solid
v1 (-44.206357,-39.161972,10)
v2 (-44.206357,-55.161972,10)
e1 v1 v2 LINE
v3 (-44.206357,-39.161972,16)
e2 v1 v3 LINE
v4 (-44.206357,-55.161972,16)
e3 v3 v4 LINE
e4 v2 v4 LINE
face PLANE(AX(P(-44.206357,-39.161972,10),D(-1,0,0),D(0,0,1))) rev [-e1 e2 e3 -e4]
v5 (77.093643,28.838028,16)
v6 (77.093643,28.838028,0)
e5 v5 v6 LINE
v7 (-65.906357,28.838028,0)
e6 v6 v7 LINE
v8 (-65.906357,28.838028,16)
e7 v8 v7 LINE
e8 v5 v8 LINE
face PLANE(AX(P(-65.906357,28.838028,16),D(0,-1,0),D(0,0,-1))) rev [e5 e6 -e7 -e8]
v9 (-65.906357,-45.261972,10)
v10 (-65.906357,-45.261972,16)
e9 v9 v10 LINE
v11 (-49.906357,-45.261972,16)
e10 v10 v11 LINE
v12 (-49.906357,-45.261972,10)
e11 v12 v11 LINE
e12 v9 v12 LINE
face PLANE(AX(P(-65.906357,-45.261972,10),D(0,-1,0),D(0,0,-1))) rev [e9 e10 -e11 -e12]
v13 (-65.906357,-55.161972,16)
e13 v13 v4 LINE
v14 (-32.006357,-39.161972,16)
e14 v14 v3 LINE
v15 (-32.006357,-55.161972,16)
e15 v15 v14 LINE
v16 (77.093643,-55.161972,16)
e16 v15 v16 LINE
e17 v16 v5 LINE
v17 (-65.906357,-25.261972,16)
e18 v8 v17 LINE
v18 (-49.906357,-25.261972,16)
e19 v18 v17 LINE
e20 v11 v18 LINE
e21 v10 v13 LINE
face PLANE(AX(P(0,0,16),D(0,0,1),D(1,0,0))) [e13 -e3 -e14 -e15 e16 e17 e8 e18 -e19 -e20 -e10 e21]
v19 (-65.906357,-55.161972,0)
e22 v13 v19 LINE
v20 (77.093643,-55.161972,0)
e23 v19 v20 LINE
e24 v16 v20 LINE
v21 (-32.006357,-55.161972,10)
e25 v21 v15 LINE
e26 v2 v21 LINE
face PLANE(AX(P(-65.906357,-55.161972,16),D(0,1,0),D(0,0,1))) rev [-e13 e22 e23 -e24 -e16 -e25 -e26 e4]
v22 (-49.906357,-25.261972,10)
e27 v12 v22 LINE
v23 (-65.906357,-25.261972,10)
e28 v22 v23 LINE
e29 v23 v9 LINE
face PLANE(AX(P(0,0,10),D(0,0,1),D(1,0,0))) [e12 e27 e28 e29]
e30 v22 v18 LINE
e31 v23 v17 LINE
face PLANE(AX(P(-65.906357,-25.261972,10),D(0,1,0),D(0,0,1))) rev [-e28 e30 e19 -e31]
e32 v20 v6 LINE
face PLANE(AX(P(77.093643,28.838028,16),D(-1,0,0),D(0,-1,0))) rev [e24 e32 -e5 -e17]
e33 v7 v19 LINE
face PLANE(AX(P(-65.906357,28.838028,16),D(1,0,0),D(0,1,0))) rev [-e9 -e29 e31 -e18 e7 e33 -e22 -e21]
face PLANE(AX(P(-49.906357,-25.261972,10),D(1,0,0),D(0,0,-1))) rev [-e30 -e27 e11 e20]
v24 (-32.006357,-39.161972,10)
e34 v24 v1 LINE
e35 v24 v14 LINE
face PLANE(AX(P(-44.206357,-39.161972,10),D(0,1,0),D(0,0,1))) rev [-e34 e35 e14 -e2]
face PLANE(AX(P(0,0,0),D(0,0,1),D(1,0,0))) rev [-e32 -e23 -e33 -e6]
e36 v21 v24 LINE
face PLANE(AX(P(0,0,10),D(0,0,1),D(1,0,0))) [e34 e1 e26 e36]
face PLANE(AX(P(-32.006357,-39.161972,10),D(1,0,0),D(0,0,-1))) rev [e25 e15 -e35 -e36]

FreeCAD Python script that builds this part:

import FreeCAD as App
import Part
import Sketcher

V = App.Vector
Q = App.Units.Quantity

doc = App.newDocument("Part")
body = doc.addObject("PartDesign::Body", "Body")

sketch1 = body.newObject("Sketcher::SketchObject", "Sketch")
sketch1.AttachmentSupport = (doc.getObject("XY_Plane"), [""])
sketch1.MapMode = "FlatFace"
sketch1.addGeometry([
    Part.LineSegment(V(-65.906357, 28.838028, 0), V(-65.906357, -55.161972, 0)),
    Part.LineSegment(V(-65.906357, -55.161972, 0), V(77.093643, -55.161972, 0)),
    Part.LineSegment(V(77.093643, -55.161972, 0), V(77.093643, 28.838028, 0)),
    Part.LineSegment(V(77.093643, 28.838028, 0), V(-65.906357, 28.838028, 0)),
], False)
sketch1.addConstraint([
    Sketcher.Constraint("Coincident", 0, 2, 1, 1),
    Sketcher.Constraint("Coincident", 1, 2, 2, 1),
    Sketcher.Constraint("Coincident", 2, 2, 3, 1),
    Sketcher.Constraint("Coincident", 3, 2, 0, 1),
    Sketcher.Constraint("Vertical", 0),
    Sketcher.Constraint("Horizontal", 1),
    Sketcher.Constraint("Vertical", 2),
    Sketcher.Constraint("Horizontal", 3),
    Sketcher.Constraint("DistanceX", 1, 1, 1, 2, Q("143 mm")),
    Sketcher.Constraint("DistanceY", 0, 2, 0, 1, Q("84 mm")),
    Sketcher.Constraint("DistanceY", 0, 2, -1, 1, Q("55.161972 mm")),
    Sketcher.Constraint("DistanceX", 0, 2, -1, 1, Q("65.906357 mm")),
])
pad1 = body.newObject("PartDesign::Pad", "Pad")
pad1.Profile = sketch1
pad1.Length = 16

sketch2 = body.newObject("Sketcher::SketchObject", "Sketch001")
sketch2.AttachmentSupport = (doc.getObject("XY_Plane"), [""])
sketch2.MapMode = "FlatFace"
sketch2.AttachmentOffset = App.Placement(V(0, 0, 16), App.Rotation())
sketch2.addGeometry([
    Part.LineSegment(V(-65.906357, -25.261972, 0), V(-65.906357, -45.261972, 0)),
    Part.LineSegment(V(-65.906357, -45.261972, 0), V(-49.906357, -45.261972, 0)),
    Part.LineSegment(V(-49.906357, -45.261972, 0), V(-49.906357, -25.261972, 0)),
    Part.LineSegment(V(-49.906357, -25.261972, 0), V(-65.906357, -25.261972, 0)),
    Part.LineSegment(V(-44.206357, -39.161972, 0), V(-44.206357, -55.161972, 0)),
    Part.LineSegment(V(-44.206357, -55.161972, 0), V(-32.006357, -55.161972, 0)),
    Part.LineSegment(V(-32.006357, -55.161972, 0), V(-32.006357, -39.161972, 0)),
    Part.LineSegment(V(-32.006357, -39.161972, 0), V(-44.206357, -39.161972, 0)),
], False)
sketch2.addConstraint([
    Sketcher.Constraint("Coincident", 0, 2, 1, 1),
    Sketcher.Constraint("Coincident", 1, 2, 2, 1),
    Sketcher.Constraint("Coincident", 2, 2, 3, 1),
    Sketcher.Constraint("Coincident", 3, 2, 0, 1),
    Sketcher.Constraint("Coincident", 4, 2, 5, 1),
    Sketcher.Constraint("Coincident", 5, 2, 6, 1),
    Sketcher.Constraint("Coincident", 6, 2, 7, 1),
    Sketcher.Constraint("Coincident", 7, 2, 4, 1),
    Sketcher.Constraint("Vertical", 0),
    Sketcher.Constraint("Horizontal", 1),
    Sketcher.Constraint("Vertical", 2),
    Sketcher.Constraint("Horizontal", 3),
    Sketcher.Constraint("Vertical", 4),
    Sketcher.Constraint("Horizontal", 5),
    Sketcher.Constraint("Vertical", 6),
    Sketcher.Constraint("Horizontal", 7),
    Sketcher.Constraint("Equal", 3, 4),
    Sketcher.Constraint("DistanceX", 1, 1, 1, 2, Q("16 mm")),
    Sketcher.Constraint("DistanceY", 0, 2, 0, 1, Q("20 mm")),
    Sketcher.Constraint("DistanceX", 5, 1, 5, 2, Q("12.2 mm")),
    Sketcher.Constraint("DistanceX", 1, 2, 4, 2, Q("5.7 mm")),
    Sketcher.Constraint("DistanceY", 4, 2, 1, 2, Q("9.9 mm")),
    Sketcher.Constraint("DistanceY", 0, 2, -1, 1, Q("45.261972 mm")),
    Sketcher.Constraint("DistanceX", 0, 2, -1, 1, Q("65.906357 mm")),
])
pocket1 = body.newObject("PartDesign::Pocket", "Pocket")
pocket1.Profile = sketch2
pocket1.Length = 6

doc.recompute()
